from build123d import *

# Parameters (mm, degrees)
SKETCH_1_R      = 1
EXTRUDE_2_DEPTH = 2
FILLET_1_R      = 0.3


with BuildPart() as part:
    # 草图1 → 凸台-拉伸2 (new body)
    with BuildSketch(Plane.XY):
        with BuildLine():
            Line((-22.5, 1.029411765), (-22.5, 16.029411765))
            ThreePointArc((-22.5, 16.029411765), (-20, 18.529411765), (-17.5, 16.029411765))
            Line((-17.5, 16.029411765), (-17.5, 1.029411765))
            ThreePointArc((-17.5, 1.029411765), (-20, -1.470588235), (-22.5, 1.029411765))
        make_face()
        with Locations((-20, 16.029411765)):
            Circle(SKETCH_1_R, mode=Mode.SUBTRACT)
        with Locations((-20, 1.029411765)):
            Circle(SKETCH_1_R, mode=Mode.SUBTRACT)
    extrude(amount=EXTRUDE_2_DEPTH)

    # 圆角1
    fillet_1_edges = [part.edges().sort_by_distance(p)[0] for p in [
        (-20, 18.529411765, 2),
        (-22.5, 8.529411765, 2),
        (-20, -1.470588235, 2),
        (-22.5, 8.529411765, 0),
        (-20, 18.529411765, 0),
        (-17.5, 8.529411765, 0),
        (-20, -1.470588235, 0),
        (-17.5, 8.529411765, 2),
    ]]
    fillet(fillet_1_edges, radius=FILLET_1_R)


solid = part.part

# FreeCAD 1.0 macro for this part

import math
import FreeCAD as App
import Part
import Sketcher
from FreeCAD import Vector


def edges_at(feature, points):
    """Names of the edges that pass closest to the given points."""
    edges = feature.Shape.Edges
    near = lambda p: min(range(len(edges)), key=lambda i: edges[i].distToShape(Part.Vertex(*p))[0])
    return sorted({f"Edge{near(p) + 1}" for p in points})

doc = App.newDocument("Part")
params = doc.addObject("Spreadsheet::Sheet", "Params")
for row, (alias, value) in enumerate([
    ("sketch1_diameter", "2 mm"),
    ("sketch1_radius", "2.5 mm"),
    ("sketch1_height", "15 mm"),
    ("pad1_length", "2 mm"),
    ("fillet_radius", "0.3 mm"),
], start=1):
    params.set(f"A{row}", alias)
    params.set(f"B{row}", "=" + value)
    params.setAlias(f"B{row}", alias)

body = doc.addObject("PartDesign::Body", "Body")

# Sketch on XY plane
sketch1 = doc.addObject("Sketcher::SketchObject", "Sketch")
body.addObject(sketch1)
sketch1.AttachmentSupport = (doc.XY_Plane, [""])
sketch1.MapMode = "FlatFace"
sketch1.addGeometry([
    Part.LineSegment(Vector(-22.5, 16, 0), Vector(-22.5, 1, 0)),  # 0
    Part.ArcOfCircle(Part.Circle(Vector(-20, 1, 0), Vector(0, 0, 1), 2.5), math.radians(180), math.radians(360)),  # 1
    Part.LineSegment(Vector(-17.5, 1, 0), Vector(-17.5, 16, 0)),  # 2
    Part.ArcOfCircle(Part.Circle(Vector(-20, 16, 0), Vector(0, 0, 1), 2.5), math.radians(0), math.radians(180)),  # 3
    Part.Circle(Vector(-20, 1, 0), Vector(0, 0, 1), 1),  # 4
    Part.Circle(Vector(-20, 16, 0), Vector(0, 0, 1), 1),  # 5
], False)
sketch1.addConstraint([
    Sketcher.Constraint("Tangent", 0, 2, 1, 1),
    Sketcher.Constraint("Tangent", 1, 2, 2, 1),
    Sketcher.Constraint("Tangent", 2, 2, 3, 1),
    Sketcher.Constraint("Tangent", 3, 2, 0, 1),
    Sketcher.Constraint("Vertical", 0),
    Sketcher.Constraint("Vertical", 2),
    Sketcher.Constraint("Coincident", 4, 3, 1, 3),
    Sketcher.Constraint("Coincident", 5, 3, 3, 3),
    Sketcher.Constraint("Equal", 4, 5),
    Sketcher.Constraint("Diameter", 4, 2.0),
    Sketcher.Constraint("Radius", 1, 2.5),
    Sketcher.Constraint("DistanceY", 0, 2, 0, 1, 15.0),
    Sketcher.Constraint("DistanceX", 1, 3, -1, 1, 20.0),
    Sketcher.Constraint("DistanceY", -1, 1, 1, 3, 1.029412),
])
sketch1.setExpression("Constraints[9]", "Params.sketch1_diameter")
sketch1.setExpression("Constraints[10]", "Params.sketch1_radius")
sketch1.setExpression("Constraints[11]", "Params.sketch1_height")
pad1 = doc.addObject("PartDesign::Pad", "Pad")
body.addObject(pad1)
pad1.Profile = sketch1
pad1.setExpression("Length", "Params.pad1_length")
doc.recompute()

fillet = doc.addObject("PartDesign::Fillet", "Fillet")
body.addObject(fillet)
fillet.Base = (pad1, edges_at(pad1, [
    (-20, 18.529, 2),
    (-22.5, 8.529, 2),
    (-20, -1.471, 2),
    (-22.5, 8.529, 0),
    (-20, 18.529, 0),
    (-17.5, 8.529, 0),
    (-20, -1.471, 0),
    (-17.5, 8.529, 2),
]))
fillet.setExpression("Radius", "Params.fillet_radius")

doc.recompute()
